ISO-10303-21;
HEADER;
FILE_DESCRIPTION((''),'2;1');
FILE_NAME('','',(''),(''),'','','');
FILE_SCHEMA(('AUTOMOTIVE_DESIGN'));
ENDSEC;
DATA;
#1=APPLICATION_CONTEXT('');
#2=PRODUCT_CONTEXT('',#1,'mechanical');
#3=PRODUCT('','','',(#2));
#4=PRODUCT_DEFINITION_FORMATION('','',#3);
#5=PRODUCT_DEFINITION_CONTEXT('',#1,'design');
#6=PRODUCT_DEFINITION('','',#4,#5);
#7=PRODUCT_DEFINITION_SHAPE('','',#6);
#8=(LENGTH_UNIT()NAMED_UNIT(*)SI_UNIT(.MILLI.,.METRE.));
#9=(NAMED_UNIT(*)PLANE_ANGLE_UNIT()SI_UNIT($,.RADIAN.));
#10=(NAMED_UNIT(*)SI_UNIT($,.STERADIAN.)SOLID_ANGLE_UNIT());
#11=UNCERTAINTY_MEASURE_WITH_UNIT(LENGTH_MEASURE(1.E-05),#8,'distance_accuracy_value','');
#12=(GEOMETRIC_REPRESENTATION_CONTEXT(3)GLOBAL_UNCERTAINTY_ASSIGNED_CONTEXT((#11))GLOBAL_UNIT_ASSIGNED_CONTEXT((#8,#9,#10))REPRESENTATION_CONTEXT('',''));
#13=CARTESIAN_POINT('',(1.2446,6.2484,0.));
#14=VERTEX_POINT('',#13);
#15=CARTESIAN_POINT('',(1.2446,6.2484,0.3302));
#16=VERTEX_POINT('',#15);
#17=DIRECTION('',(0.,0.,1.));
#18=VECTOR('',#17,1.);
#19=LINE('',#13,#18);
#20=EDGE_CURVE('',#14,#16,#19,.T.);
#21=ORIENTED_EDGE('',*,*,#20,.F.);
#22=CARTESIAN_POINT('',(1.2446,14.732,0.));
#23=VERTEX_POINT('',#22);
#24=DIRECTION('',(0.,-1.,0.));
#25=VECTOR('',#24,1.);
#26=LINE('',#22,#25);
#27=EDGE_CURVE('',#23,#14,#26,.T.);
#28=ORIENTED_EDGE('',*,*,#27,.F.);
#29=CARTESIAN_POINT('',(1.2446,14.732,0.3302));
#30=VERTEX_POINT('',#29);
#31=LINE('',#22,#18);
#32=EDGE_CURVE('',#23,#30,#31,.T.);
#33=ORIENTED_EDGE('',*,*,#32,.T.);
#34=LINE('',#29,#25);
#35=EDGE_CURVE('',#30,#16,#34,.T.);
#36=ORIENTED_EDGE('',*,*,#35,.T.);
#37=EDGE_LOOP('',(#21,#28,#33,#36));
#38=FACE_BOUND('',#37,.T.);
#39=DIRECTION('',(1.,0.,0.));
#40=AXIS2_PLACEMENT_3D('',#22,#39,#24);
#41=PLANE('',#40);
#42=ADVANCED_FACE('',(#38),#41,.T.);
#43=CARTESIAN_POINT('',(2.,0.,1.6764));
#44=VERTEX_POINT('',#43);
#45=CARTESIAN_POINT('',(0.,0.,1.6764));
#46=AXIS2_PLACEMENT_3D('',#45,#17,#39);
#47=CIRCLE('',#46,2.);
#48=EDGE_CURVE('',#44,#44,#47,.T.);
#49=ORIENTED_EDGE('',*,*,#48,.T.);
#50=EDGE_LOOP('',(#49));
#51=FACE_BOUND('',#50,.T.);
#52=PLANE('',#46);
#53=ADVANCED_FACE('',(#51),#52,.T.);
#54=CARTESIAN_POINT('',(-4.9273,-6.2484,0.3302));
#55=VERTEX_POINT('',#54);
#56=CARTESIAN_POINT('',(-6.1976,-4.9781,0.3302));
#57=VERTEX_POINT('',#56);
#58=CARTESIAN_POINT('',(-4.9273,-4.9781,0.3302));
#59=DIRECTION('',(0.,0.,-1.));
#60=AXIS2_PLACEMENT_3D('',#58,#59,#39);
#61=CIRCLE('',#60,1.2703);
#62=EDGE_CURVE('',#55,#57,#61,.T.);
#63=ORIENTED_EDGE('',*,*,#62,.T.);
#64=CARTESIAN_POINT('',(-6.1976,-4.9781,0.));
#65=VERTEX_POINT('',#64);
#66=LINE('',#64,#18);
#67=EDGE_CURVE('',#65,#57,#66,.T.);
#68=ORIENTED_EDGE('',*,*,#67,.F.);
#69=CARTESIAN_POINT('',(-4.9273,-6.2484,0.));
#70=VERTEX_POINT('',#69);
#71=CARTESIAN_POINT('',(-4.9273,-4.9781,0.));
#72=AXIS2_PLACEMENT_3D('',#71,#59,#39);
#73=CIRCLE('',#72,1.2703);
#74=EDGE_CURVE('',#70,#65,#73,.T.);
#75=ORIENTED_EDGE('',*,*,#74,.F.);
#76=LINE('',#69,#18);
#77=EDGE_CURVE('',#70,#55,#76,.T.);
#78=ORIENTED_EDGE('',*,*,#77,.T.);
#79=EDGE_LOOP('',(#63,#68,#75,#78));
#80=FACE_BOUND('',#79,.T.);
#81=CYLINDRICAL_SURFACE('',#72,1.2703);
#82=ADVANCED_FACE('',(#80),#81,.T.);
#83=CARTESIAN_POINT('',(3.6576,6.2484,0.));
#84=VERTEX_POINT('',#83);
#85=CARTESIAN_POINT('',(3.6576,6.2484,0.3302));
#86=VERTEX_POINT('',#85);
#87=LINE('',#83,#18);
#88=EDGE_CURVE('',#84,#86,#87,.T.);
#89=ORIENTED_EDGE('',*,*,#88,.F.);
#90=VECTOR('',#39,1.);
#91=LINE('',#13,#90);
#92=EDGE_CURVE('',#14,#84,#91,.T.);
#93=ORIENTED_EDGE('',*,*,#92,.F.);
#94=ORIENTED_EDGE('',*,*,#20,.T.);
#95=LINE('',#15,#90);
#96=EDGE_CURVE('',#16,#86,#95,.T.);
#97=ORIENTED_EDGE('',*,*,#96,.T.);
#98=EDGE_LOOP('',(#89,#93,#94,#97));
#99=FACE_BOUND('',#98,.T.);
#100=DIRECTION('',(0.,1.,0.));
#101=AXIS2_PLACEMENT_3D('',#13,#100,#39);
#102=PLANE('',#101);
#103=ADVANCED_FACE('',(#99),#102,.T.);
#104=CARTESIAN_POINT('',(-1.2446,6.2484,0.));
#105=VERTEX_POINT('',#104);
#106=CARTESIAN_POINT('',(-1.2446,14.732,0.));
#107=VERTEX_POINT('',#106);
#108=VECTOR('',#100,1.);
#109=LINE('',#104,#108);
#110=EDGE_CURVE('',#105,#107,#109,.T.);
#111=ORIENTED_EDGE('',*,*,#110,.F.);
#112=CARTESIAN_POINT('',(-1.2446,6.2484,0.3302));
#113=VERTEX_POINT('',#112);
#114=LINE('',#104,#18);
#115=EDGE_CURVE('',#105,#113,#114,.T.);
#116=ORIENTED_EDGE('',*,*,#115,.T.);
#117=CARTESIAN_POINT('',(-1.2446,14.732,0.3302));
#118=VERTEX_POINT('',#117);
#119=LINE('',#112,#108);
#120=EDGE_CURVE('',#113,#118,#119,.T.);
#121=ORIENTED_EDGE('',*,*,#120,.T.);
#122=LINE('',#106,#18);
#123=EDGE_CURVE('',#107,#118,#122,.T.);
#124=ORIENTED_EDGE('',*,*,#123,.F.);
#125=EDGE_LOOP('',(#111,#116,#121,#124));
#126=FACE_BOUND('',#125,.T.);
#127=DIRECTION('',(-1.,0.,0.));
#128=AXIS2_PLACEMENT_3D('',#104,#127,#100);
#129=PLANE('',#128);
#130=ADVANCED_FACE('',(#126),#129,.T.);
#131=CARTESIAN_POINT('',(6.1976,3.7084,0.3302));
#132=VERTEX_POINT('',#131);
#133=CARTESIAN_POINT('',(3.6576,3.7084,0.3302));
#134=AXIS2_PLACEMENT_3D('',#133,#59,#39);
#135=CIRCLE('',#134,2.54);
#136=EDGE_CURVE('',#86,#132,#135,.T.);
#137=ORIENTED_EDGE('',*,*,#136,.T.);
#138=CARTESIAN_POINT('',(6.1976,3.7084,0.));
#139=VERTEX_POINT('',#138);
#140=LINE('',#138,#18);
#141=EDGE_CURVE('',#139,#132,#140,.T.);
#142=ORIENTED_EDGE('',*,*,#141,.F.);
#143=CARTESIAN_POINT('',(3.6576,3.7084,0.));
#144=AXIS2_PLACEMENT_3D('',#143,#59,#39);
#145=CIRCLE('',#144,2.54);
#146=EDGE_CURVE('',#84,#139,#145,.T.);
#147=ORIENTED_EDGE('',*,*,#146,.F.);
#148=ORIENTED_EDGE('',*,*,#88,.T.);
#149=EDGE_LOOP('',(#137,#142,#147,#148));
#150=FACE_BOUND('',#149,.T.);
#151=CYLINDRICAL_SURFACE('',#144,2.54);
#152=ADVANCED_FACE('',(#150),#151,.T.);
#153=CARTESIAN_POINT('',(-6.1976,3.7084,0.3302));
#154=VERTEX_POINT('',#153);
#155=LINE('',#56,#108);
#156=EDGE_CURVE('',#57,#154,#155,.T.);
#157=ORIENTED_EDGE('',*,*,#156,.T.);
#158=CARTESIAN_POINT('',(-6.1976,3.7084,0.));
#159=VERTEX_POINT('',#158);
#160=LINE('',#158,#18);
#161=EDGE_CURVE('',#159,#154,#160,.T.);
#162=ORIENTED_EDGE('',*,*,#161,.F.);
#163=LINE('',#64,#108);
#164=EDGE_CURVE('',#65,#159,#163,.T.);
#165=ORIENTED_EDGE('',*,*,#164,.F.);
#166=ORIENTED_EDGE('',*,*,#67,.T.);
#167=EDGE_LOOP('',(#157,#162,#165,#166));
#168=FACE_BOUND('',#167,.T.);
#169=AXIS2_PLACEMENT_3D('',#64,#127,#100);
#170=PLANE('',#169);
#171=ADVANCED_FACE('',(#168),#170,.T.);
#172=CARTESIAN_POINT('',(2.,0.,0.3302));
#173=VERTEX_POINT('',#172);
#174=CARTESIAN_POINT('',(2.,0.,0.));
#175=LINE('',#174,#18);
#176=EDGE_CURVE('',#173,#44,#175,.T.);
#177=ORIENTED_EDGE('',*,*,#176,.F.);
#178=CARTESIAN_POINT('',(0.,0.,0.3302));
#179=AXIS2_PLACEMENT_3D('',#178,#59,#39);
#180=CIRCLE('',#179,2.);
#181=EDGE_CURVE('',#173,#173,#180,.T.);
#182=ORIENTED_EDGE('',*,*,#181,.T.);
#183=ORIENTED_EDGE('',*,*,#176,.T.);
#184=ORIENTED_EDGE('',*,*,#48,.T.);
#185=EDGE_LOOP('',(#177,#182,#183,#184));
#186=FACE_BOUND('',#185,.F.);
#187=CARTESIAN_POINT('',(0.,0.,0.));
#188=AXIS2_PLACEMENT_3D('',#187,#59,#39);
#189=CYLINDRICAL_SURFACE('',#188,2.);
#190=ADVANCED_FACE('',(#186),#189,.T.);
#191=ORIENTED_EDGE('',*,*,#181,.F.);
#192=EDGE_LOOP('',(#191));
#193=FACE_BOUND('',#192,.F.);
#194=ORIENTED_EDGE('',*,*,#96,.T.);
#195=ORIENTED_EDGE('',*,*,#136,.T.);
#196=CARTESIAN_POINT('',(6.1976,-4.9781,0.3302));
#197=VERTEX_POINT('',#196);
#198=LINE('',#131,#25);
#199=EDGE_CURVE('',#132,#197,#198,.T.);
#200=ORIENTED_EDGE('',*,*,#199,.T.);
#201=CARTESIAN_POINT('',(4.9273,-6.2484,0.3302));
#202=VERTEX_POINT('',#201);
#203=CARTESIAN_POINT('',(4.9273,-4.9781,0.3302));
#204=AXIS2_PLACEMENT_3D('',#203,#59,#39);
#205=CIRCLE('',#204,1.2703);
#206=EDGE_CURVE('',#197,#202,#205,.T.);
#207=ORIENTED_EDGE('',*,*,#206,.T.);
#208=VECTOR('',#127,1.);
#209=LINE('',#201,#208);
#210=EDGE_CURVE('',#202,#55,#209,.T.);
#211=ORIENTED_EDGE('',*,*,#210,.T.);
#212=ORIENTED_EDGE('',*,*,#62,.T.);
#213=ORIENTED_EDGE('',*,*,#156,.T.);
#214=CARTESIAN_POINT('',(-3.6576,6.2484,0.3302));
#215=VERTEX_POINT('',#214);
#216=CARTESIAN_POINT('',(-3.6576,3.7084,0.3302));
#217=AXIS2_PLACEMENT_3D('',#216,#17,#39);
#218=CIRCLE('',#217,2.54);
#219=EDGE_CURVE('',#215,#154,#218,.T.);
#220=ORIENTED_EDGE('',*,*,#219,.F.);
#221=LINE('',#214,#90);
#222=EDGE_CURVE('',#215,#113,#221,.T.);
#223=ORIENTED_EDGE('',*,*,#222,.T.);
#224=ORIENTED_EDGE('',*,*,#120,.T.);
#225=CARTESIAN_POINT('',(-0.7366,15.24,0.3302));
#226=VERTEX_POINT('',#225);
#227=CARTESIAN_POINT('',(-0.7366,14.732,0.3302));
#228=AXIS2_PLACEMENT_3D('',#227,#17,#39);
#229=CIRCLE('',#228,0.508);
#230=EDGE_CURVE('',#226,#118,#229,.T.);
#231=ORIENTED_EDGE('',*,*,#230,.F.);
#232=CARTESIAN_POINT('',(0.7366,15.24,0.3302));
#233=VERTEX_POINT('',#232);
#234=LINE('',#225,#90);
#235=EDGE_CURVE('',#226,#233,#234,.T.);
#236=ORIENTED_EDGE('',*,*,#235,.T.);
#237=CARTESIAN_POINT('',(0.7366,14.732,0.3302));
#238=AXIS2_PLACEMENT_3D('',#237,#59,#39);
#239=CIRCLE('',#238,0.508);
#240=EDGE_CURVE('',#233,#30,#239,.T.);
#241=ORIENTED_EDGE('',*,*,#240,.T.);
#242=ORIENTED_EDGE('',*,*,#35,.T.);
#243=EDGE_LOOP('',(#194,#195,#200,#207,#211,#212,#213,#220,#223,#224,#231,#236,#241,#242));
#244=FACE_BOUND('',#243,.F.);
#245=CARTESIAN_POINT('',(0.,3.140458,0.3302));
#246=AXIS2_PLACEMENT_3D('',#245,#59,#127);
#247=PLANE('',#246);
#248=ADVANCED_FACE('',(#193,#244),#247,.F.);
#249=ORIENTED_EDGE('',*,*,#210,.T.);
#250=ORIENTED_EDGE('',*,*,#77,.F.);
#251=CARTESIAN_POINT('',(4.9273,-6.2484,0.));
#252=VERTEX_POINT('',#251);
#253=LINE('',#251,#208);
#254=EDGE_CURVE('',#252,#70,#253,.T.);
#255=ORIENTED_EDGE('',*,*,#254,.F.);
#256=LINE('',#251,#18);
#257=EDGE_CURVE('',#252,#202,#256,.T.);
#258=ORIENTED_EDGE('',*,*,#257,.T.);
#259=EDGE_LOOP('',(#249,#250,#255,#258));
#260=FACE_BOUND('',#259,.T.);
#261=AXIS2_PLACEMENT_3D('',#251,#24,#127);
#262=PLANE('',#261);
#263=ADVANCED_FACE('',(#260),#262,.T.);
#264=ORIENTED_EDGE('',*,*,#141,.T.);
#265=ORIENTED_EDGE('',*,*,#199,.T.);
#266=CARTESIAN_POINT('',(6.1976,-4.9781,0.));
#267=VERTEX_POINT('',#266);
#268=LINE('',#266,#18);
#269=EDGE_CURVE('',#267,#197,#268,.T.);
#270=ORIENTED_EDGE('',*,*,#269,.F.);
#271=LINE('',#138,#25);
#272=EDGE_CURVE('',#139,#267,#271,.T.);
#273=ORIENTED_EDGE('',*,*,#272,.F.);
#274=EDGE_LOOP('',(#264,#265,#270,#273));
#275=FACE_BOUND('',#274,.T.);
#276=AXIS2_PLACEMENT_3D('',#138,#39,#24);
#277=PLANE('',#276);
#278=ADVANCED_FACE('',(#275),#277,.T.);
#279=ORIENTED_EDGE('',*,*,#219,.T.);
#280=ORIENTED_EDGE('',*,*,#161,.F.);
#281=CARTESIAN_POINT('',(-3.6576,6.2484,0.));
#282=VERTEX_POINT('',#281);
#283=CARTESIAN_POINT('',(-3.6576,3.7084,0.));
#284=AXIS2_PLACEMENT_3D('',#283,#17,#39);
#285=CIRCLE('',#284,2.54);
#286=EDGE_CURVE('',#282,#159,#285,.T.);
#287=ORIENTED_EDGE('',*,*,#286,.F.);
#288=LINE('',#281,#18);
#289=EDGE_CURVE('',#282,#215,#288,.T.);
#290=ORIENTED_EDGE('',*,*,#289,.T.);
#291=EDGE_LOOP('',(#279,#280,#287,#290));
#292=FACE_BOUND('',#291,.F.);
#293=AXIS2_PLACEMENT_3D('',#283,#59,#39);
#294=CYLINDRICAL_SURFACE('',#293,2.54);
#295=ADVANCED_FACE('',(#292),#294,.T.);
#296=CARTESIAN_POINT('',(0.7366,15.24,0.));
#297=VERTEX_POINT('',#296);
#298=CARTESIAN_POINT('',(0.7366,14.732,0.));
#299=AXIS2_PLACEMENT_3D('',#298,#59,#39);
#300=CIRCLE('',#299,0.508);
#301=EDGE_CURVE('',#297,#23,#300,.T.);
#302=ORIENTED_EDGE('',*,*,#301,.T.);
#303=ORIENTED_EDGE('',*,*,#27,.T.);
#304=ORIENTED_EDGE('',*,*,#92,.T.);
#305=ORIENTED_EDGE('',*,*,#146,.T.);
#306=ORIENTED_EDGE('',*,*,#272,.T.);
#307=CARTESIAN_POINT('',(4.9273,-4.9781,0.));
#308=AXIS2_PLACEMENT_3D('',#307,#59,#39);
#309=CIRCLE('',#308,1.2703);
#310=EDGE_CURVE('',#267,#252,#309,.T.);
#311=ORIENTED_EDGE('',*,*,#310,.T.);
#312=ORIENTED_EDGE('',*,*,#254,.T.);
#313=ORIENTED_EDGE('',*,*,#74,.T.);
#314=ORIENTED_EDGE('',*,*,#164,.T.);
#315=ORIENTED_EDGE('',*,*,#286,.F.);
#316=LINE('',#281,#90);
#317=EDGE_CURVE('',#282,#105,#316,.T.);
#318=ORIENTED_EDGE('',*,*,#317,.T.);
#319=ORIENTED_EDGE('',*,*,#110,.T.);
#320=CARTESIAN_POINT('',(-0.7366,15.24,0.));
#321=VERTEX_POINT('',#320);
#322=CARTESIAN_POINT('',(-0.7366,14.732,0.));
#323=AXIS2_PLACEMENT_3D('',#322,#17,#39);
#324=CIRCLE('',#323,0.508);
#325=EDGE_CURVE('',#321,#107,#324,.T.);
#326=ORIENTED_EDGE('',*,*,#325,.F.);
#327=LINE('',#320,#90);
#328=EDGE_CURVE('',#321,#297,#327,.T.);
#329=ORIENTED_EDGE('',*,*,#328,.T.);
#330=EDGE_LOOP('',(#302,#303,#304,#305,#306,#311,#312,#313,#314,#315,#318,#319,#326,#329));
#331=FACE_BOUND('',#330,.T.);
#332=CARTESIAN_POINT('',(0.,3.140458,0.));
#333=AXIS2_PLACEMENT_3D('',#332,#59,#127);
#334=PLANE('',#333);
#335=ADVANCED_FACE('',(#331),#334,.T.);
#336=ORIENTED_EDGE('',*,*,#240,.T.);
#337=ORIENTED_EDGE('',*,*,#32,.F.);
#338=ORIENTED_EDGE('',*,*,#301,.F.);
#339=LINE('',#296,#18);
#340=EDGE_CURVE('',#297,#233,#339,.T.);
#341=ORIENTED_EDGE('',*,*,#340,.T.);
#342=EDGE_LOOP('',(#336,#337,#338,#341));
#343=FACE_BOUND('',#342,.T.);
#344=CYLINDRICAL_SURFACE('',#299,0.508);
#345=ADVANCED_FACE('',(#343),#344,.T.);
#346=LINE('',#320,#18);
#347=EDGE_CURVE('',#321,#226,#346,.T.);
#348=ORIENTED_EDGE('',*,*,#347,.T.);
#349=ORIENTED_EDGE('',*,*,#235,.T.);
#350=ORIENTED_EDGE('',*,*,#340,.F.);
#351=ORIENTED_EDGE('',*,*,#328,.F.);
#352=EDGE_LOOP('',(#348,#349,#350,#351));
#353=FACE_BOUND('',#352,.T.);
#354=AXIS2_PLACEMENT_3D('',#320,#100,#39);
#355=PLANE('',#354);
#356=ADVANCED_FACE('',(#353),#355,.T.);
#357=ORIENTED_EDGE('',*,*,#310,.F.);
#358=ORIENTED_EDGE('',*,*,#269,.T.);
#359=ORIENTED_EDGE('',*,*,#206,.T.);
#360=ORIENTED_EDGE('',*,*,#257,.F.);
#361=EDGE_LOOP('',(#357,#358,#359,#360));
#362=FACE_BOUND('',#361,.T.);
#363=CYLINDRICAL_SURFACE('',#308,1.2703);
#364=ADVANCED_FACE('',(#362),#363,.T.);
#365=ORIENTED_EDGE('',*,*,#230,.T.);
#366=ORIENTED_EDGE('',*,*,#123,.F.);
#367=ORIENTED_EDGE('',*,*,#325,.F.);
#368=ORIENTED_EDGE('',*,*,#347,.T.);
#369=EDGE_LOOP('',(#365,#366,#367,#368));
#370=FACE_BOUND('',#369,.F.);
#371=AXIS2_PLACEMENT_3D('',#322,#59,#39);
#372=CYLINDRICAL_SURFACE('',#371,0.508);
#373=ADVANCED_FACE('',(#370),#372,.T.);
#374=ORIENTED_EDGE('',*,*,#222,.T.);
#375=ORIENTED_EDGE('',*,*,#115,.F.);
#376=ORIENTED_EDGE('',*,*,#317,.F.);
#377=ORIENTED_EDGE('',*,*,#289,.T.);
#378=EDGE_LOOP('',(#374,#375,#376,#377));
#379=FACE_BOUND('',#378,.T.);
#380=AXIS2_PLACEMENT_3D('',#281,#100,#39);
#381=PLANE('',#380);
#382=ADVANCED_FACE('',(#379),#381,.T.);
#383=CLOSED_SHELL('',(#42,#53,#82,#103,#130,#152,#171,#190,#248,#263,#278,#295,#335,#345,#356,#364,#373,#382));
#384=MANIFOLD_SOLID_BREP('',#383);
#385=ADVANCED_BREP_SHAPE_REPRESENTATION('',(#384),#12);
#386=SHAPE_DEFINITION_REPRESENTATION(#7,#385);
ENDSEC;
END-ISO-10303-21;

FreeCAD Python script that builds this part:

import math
import FreeCAD as App
import Part
import Sketcher

V = App.Vector
Q = App.Units.Quantity

doc = App.newDocument("Part")
params = doc.addObject("Spreadsheet::Sheet", "Params")
for row, (alias, value) in enumerate([
    ("sketch1_radius", "0.1 in"),
    ("sketch1_radius2", "0.02 in"),
    ("sketch1_radius3", "0.05 in"),
    ("sketch1_width", "0.095 in"),
    ("sketch1_width2", "0.058 in"),
    ("pad1_length", "0.013 in"),
    ("pad2_length", "0.066 in"),
], start=1):
    params.set(f"A{row}", alias)
    params.set(f"B{row}", "=" + value)
    params.setAlias(f"B{row}", alias)

body = doc.addObject("PartDesign::Body", "Body")

# Sketch on XY plane
sketch1 = body.newObject("Sketcher::SketchObject", "Sketch")
sketch1.AttachmentSupport = (doc.getObject("XY_Plane"), [""])
sketch1.MapMode = "FlatFace"
sketch1.addGeometry(Part.LineSegment(V(6.2, -5, 0), V(6.2, 3.7, 0)), False)
sketch1.addGeometry(Part.ArcOfCircle(Part.Circle(V(3.7, 3.7, 0), V(0, 0, 1), 2.5), math.radians(0), math.radians(90)), False)
sketch1.addGeometry(Part.LineSegment(V(3.7, 6.2, 0), V(1.2, 6.2, 0)), False)
sketch1.addGeometry(Part.LineSegment(V(1.2, 6.2, 0), V(1.2, 14.7, 0)), False)
sketch1.addGeometry(Part.ArcOfCircle(Part.Circle(V(0.7, 14.7, 0), V(0, 0, 1), 0.5), math.radians(0), math.radians(90)), False)
sketch1.addGeometry(Part.LineSegment(V(0.7, 15.2, 0), V(-0.7, 15.2, 0)), False)
sketch1.addGeometry(Part.ArcOfCircle(Part.Circle(V(-0.7, 14.7, 0), V(0, 0, 1), 0.5), math.radians(90), math.radians(180)), False)
sketch1.addGeometry(Part.LineSegment(V(-1.2, 14.7, 0), V(-1.2, 6.2, 0)), False)
sketch1.addGeometry(Part.LineSegment(V(-1.2, 6.2, 0), V(-3.7, 6.2, 0)), False)
sketch1.addGeometry(Part.ArcOfCircle(Part.Circle(V(-3.7, 3.7, 0), V(0, 0, 1), 2.5), math.radians(90), math.radians(180)), False)
sketch1.addGeometry(Part.LineSegment(V(-6.2, 3.7, 0), V(-6.2, -5, 0)), False)
sketch1.addGeometry(Part.ArcOfCircle(Part.Circle(V(-4.9, -5, 0), V(0, 0, 1), 1.3), math.radians(180), math.radians(270)), False)
sketch1.addGeometry(Part.LineSegment(V(-4.9, -6.2, 0), V(4.9, -6.2, 0)), False)
sketch1.addGeometry(Part.ArcOfCircle(Part.Circle(V(4.9, -5, 0), V(0, 0, 1), 1.3), math.radians(-90), math.radians(0)), False)
sketch1.addConstraint(Sketcher.Constraint("Tangent", 0, 2, 1, 1))
sketch1.addConstraint(Sketcher.Constraint("Tangent", 1, 2, 2, 1))
sketch1.addConstraint(Sketcher.Constraint("Coincident", 2, 2, 3, 1))
sketch1.addConstraint(Sketcher.Constraint("Tangent", 3, 2, 4, 1))
sketch1.addConstraint(Sketcher.Constraint("Tangent", 4, 2, 5, 1))
sketch1.addConstraint(Sketcher.Constraint("Tangent", 5, 2, 6, 1))
sketch1.addConstraint(Sketcher.Constraint("Tangent", 6, 2, 7, 1))
sketch1.addConstraint(Sketcher.Constraint("Coincident", 7, 2, 8, 1))
sketch1.addConstraint(Sketcher.Constraint("Tangent", 8, 2, 9, 1))
sketch1.addConstraint(Sketcher.Constraint("Tangent", 9, 2, 10, 1))
sketch1.addConstraint(Sketcher.Constraint("Tangent", 10, 2, 11, 1))
sketch1.addConstraint(Sketcher.Constraint("Tangent", 11, 2, 12, 1))
sketch1.addConstraint(Sketcher.Constraint("Tangent", 12, 2, 13, 1))
sketch1.addConstraint(Sketcher.Constraint("Tangent", 13, 2, 0, 1))
sketch1.addConstraint(Sketcher.Constraint("Vertical", 0))
sketch1.addConstraint(Sketcher.Constraint("Horizontal", 2))
sketch1.addConstraint(Sketcher.Constraint("Vertical", 3))
sketch1.addConstraint(Sketcher.Constraint("Horizontal", 5))
sketch1.addConstraint(Sketcher.Constraint("Vertical", 7))
sketch1.addConstraint(Sketcher.Constraint("Horizontal", 8))
sketch1.addConstraint(Sketcher.Constraint("Vertical", 10))
sketch1.addConstraint(Sketcher.Constraint("Horizontal", 12))
sketch1.addConstraint(Sketcher.Constraint("Equal", 4, 6))
sketch1.addConstraint(Sketcher.Constraint("Equal", 1, 9))
sketch1.addConstraint(Sketcher.Constraint("Equal", 11, 13))
sketch1.addConstraint(Sketcher.Constraint("Symmetric", 1, 3, 9, 3, -2))
sketch1.addConstraint(Sketcher.Constraint("Equal", 2, 8))
sketch1.addConstraint(Sketcher.Constraint("Radius", 1, Q("0.1 in")))
sketch1.addConstraint(Sketcher.Constraint("Radius", 4, Q("0.02 in")))
sketch1.addConstraint(Sketcher.Constraint("Radius", 11, Q("0.05 in")))
sketch1.addConstraint(Sketcher.Constraint("DistanceY", -1, 1, 4, 2, Q("0.6 in")))
sketch1.addConstraint(Sketcher.Constraint("DistanceX", 2, 2, 2, 1, Q("0.095 in")))
sketch1.addConstraint(Sketcher.Constraint("DistanceX", 5, 2, 5, 1, Q("0.058 in")))
sketch1.addConstraint(Sketcher.Constraint("DistanceY", 0, 1, 0, 2, Q("0.342 in")))
sketch1.addConstraint(Sketcher.Constraint("DistanceY", 3, 1, 3, 2, Q("0.334 in")))
sketch1.setExpression("Constraints[27]", "Params.sketch1_radius")
sketch1.setExpression("Constraints[28]", "Params.sketch1_radius2")
sketch1.setExpression("Constraints[29]", "Params.sketch1_radius3")
sketch1.setExpression("Constraints[31]", "Params.sketch1_width")
sketch1.setExpression("Constraints[32]", "Params.sketch1_width2")
pad1 = body.newObject("PartDesign::Pad", "Pad")
pad1.Profile = sketch1
pad1.setExpression("Length", "Params.pad1_length")

# Sketch on XY plane
sketch2 = body.newObject("Sketcher::SketchObject", "Sketch001")
sketch2.AttachmentSupport = (doc.getObject("XY_Plane"), [""])
sketch2.MapMode = "FlatFace"
sketch2.addGeometry(Part.Circle(V(0, 0, 0), V(0, 0, 1), 2), False)
sketch2.addConstraint(Sketcher.Constraint("Coincident", 0, 3, -1, 1))
sketch2.addConstraint(Sketcher.Constraint("Diameter", 0, 4.0))
pad2 = body.newObject("PartDesign::Pad", "Pad001")
pad2.Profile = sketch2
pad2.setExpression("Length", "Params.pad2_length")

doc.recompute()
